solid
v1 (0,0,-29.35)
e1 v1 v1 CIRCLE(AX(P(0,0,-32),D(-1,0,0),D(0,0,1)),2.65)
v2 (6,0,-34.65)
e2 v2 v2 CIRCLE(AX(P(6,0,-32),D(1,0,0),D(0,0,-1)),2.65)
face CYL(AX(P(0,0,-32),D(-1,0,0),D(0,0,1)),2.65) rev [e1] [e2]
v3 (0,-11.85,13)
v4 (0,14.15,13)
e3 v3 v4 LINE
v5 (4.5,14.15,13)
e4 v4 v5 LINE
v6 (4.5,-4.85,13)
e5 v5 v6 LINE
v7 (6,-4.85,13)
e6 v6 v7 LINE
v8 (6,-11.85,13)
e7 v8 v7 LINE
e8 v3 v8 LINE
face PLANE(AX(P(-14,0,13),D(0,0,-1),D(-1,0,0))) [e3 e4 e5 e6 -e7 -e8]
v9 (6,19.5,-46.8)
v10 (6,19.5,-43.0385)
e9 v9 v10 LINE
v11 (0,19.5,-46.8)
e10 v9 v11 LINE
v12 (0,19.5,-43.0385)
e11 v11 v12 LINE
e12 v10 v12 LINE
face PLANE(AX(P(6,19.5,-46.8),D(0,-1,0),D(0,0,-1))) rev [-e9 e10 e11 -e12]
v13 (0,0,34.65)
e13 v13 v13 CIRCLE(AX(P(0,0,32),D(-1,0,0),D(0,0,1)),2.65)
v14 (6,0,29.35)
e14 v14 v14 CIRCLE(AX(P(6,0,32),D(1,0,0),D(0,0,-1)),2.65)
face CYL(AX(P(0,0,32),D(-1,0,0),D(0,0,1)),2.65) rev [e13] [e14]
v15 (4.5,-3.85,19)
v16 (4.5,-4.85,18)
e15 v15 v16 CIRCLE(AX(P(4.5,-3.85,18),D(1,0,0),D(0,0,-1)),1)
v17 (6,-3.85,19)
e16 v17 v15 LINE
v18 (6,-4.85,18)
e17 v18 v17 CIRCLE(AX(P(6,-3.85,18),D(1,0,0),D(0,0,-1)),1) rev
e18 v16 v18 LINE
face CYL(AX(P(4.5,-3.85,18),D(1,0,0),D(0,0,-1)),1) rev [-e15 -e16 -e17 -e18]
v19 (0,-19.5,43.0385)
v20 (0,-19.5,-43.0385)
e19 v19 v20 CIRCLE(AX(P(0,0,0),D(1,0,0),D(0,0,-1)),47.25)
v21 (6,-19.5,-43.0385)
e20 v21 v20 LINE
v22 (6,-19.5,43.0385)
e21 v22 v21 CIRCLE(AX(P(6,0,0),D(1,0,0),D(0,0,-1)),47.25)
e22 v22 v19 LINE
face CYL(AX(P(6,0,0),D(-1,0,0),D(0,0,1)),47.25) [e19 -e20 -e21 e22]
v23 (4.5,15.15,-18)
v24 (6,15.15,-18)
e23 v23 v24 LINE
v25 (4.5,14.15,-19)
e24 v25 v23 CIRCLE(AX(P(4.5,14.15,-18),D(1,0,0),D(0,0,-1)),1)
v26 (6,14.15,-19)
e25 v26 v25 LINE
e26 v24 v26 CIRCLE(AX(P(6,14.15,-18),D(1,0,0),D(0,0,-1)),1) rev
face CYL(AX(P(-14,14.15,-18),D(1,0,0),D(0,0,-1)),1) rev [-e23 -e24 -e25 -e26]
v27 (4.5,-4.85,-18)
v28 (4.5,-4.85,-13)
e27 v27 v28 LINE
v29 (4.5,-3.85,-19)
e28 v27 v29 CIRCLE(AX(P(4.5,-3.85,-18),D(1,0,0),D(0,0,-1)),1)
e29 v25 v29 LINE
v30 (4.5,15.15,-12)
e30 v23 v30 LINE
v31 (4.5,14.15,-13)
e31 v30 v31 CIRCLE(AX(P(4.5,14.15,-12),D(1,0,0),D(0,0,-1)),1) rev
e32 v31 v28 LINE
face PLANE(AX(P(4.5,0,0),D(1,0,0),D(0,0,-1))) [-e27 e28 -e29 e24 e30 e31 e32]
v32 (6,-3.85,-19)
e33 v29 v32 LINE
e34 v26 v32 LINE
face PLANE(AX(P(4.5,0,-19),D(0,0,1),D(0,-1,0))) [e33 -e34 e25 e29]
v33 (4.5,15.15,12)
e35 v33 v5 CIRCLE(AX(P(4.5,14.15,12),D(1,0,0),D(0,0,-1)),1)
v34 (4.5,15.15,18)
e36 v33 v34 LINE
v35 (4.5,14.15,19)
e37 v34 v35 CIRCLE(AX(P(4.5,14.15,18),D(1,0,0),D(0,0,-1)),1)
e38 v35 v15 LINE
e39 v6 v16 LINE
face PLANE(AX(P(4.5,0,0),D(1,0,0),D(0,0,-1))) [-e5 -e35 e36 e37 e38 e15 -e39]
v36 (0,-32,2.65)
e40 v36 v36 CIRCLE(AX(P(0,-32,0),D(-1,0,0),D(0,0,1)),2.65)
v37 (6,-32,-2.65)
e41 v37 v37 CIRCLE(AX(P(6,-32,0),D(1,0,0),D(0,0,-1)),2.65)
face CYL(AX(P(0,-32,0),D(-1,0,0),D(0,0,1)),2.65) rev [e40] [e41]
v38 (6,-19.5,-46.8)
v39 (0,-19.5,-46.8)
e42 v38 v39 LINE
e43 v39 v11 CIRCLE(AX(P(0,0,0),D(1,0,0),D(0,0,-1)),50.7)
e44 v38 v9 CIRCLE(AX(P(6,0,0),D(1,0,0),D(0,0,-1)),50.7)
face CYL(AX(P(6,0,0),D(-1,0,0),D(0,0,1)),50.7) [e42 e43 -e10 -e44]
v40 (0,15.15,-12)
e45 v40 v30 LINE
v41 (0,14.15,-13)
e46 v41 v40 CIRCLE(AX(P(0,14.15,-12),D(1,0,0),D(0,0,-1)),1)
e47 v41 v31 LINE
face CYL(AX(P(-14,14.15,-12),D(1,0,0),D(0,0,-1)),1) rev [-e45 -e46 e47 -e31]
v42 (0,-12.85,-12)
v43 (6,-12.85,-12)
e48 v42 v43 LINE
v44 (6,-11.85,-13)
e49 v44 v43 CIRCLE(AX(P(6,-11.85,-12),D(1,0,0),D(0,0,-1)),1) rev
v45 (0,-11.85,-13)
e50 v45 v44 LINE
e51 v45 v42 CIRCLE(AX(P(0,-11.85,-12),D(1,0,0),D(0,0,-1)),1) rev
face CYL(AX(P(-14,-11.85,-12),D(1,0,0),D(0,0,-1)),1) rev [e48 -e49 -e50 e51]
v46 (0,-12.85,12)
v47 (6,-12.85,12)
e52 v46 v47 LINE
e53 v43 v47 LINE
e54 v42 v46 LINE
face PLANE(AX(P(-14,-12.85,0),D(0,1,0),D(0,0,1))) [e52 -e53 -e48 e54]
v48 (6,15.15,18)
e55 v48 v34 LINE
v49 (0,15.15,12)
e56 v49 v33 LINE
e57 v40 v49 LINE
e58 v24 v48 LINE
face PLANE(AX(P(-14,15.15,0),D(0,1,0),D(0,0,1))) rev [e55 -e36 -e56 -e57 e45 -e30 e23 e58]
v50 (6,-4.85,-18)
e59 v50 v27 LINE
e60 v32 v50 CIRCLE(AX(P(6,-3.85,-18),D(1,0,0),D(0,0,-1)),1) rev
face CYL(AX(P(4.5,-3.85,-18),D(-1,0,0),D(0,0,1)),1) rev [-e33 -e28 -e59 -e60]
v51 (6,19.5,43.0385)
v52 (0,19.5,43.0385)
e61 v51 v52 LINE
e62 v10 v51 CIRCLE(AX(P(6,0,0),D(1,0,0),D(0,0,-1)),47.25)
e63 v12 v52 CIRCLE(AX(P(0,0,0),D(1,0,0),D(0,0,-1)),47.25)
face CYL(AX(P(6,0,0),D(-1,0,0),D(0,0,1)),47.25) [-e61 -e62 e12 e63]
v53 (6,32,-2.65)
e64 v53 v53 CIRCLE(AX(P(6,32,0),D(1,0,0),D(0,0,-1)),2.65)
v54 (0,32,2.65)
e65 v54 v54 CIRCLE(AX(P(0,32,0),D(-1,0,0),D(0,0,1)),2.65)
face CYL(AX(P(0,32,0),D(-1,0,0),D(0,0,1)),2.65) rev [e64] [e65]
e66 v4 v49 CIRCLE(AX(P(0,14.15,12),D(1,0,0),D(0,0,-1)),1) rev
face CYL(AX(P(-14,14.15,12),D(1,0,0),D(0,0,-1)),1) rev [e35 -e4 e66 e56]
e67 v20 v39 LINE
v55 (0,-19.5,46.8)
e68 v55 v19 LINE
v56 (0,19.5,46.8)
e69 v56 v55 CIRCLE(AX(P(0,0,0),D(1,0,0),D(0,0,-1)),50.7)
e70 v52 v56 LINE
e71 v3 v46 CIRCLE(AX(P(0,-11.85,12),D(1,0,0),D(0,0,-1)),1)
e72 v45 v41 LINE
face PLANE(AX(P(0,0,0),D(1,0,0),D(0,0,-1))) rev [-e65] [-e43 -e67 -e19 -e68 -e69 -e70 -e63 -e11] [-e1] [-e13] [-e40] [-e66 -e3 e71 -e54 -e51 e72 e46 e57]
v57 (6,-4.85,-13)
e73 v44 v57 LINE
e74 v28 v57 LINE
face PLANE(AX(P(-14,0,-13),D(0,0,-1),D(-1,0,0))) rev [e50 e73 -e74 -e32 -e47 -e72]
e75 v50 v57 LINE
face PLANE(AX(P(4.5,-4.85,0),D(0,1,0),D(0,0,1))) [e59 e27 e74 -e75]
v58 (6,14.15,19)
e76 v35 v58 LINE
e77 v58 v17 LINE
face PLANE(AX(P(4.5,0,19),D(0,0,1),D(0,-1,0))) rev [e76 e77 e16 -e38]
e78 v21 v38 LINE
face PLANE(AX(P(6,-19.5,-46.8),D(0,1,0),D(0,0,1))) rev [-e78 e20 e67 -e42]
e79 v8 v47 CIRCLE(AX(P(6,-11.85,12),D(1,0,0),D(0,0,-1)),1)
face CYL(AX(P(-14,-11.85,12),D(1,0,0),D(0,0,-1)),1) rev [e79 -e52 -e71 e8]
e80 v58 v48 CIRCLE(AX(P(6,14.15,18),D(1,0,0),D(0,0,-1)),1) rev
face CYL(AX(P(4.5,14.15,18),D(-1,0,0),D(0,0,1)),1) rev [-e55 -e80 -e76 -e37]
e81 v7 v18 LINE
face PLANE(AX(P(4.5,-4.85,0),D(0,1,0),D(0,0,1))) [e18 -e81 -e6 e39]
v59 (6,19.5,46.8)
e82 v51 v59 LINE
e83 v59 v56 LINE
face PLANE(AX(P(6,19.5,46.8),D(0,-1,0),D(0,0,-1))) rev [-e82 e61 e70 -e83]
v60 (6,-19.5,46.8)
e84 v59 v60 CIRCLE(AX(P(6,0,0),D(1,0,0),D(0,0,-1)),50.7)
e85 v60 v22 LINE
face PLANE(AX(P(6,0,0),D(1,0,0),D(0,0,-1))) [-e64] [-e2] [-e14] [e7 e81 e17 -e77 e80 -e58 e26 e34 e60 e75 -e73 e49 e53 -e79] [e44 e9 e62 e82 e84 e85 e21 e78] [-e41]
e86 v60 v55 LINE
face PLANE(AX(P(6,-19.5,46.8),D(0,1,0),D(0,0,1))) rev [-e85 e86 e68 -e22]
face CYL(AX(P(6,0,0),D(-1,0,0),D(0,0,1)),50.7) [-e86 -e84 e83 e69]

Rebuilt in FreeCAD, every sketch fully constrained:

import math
import FreeCAD as App
import Part
import Sketcher
Q = App.Units.Quantity


def edges_at(feature, points):
    """Names of the edges that pass closest to the given points."""
    edges = feature.Shape.Edges
    near = lambda p: min(range(len(edges)), key=lambda i: edges[i].distToShape(Part.Vertex(*p))[0])
    return sorted({f"Edge{near(p) + 1}" for p in points})


def add_polygon(sketch, points):
    """Adds a closed chain of lines whose ends are joined by coincident constraints."""
    first, n = sketch.GeometryCount, len(points)
    for a, b in zip(points, points[1:] + points[:1]):
        sketch.addGeometry(Part.LineSegment(App.Vector(*a, 0), App.Vector(*b, 0)), False)
    for i in range(n):
        sketch.addConstraint(Sketcher.Constraint("Coincident", first + i, 2, first + (i + 1) % n, 1))

doc = App.newDocument("Part")
body = doc.addObject("PartDesign::Body", "Body")

# Sketch on YZ plane
sketch1 = body.newObject("Sketcher::SketchObject", "Sketch")
sketch1.AttachmentSupport = (doc.getObject("YZ_Plane"), [""])
sketch1.MapMode = "FlatFace"
sketch1.addGeometry(Part.LineSegment(App.Vector(19.5, 43, 0), App.Vector(19.5, 46.8, 0)), False)
sketch1.addGeometry(Part.ArcOfCircle(Part.Circle(App.Vector(0, 0, 0), App.Vector(0, 0, 1), 50.7), math.radians(67), math.radians(113)), False)
sketch1.addGeometry(Part.LineSegment(App.Vector(-19.5, 46.8, 0), App.Vector(-19.5, 43, 0)), False)
sketch1.addGeometry(Part.ArcOfCircle(Part.Circle(App.Vector(0, 0, 0), App.Vector(0, 0, 1), 47.2), math.radians(114), math.radians(246)), False)
sketch1.addGeometry(Part.LineSegment(App.Vector(-19.5, -43, 0), App.Vector(-19.5, -46.8, 0)), False)
sketch1.addGeometry(Part.ArcOfCircle(Part.Circle(App.Vector(0, 0, 0), App.Vector(0, 0, 1), 50.7), math.radians(-113), math.radians(-67)), False)
sketch1.addGeometry(Part.LineSegment(App.Vector(19.5, -46.8, 0), App.Vector(19.5, -43, 0)), False)
sketch1.addGeometry(Part.ArcOfCircle(Part.Circle(App.Vector(0, 0, 0), App.Vector(0, 0, 1), 47.2), math.radians(-66), math.radians(66)), False)
sketch1.addConstraint(Sketcher.Constraint("Coincident", 0, 2, 1, 1))
sketch1.addConstraint(Sketcher.Constraint("Coincident", 1, 2, 2, 1))
sketch1.addConstraint(Sketcher.Constraint("Coincident", 2, 2, 3, 1))
sketch1.addConstraint(Sketcher.Constraint("Coincident", 3, 2, 4, 1))
sketch1.addConstraint(Sketcher.Constraint("Coincident", 4, 2, 5, 1))
sketch1.addConstraint(Sketcher.Constraint("Coincident", 5, 2, 6, 1))
sketch1.addConstraint(Sketcher.Constraint("Coincident", 6, 2, 7, 1))
sketch1.addConstraint(Sketcher.Constraint("Coincident", 7, 2, 0, 1))
sketch1.addConstraint(Sketcher.Constraint("Vertical", 0))
sketch1.addConstraint(Sketcher.Constraint("Vertical", 2))
sketch1.addConstraint(Sketcher.Constraint("Vertical", 4))
sketch1.addConstraint(Sketcher.Constraint("Vertical", 6))
sketch1.addConstraint(Sketcher.Constraint("Coincident", 1, 3, -1, 1))
sketch1.addConstraint(Sketcher.Constraint("Coincident", 3, 3, -1, 1))
sketch1.addConstraint(Sketcher.Constraint("Coincident", 5, 3, -1, 1))
sketch1.addConstraint(Sketcher.Constraint("Coincident", 7, 3, -1, 1))
sketch1.addConstraint(Sketcher.Constraint("Equal", 1, 5))
sketch1.addConstraint(Sketcher.Constraint("Equal", 3, 7))
sketch1.addConstraint(Sketcher.Constraint("Horizontal", 0, 2, 1, 2))
sketch1.addConstraint(Sketcher.Constraint("Horizontal", 4, 2, 5, 2))
sketch1.addConstraint(Sketcher.Constraint("Vertical", 2, 2, 3, 2))
sketch1.addConstraint(Sketcher.Constraint("Radius", 1, Q("50.7 mm")))
sketch1.addConstraint(Sketcher.Constraint("Radius", 3, Q("47.25 mm")))
sketch1.addConstraint(Sketcher.Constraint("DistanceX", 1, 2, 0, 2, Q("39 mm")))
pad1 = body.newObject("PartDesign::Pad", "Pad")
pad1.Profile = sketch1
pad1.Length = 6

# Sketch on YZ plane
sketch2 = body.newObject("Sketcher::SketchObject", "Sketch001")
sketch2.AttachmentSupport = (doc.getObject("YZ_Plane"), [""])
sketch2.MapMode = "FlatFace"
sketch2.AttachmentOffset = App.Placement(App.Vector(0, 0, 6), App.Rotation())
sketch2.addGeometry(Part.ArcOfCircle(Part.Circle(App.Vector(14.1, -12, 0), App.Vector(0, 0, 1), 1), math.radians(-90), math.radians(0)), False)
sketch2.addGeometry(Part.LineSegment(App.Vector(15.2, -12, 0), App.Vector(15.2, 12, 0)), False)
sketch2.addGeometry(Part.ArcOfCircle(Part.Circle(App.Vector(14.1, 12, 0), App.Vector(0, 0, 1), 1), math.radians(0), math.radians(90)), False)
sketch2.addGeometry(Part.LineSegment(App.Vector(14.2, 13, 0), App.Vector(-11.8, 13, 0)), False)
sketch2.addGeometry(Part.ArcOfCircle(Part.Circle(App.Vector(-11.8, 12, 0), App.Vector(0, 0, 1), 1), math.radians(90), math.radians(180)), False)
sketch2.addGeometry(Part.LineSegment(App.Vector(-12.8, 12, 0), App.Vector(-12.8, -12, 0)), False)
sketch2.addGeometry(Part.ArcOfCircle(Part.Circle(App.Vector(-11.8, -12, 0), App.Vector(0, 0, 1), 1), math.radians(-180), math.radians(-90)), False)
sketch2.addGeometry(Part.LineSegment(App.Vector(-11.8, -13, 0), App.Vector(14.2, -13, 0)), False)
sketch2.addConstraint(Sketcher.Constraint("Tangent", 0, 2, 1, 1))
sketch2.addConstraint(Sketcher.Constraint("Tangent", 1, 2, 2, 1))
sketch2.addConstraint(Sketcher.Constraint("Tangent", 2, 2, 3, 1))
sketch2.addConstraint(Sketcher.Constraint("Tangent", 3, 2, 4, 1))
sketch2.addConstraint(Sketcher.Constraint("Tangent", 4, 2, 5, 1))
sketch2.addConstraint(Sketcher.Constraint("Tangent", 5, 2, 6, 1))
sketch2.addConstraint(Sketcher.Constraint("Tangent", 6, 2, 7, 1))
sketch2.addConstraint(Sketcher.Constraint("Tangent", 7, 2, 0, 1))
sketch2.addConstraint(Sketcher.Constraint("Vertical", 1))
sketch2.addConstraint(Sketcher.Constraint("Horizontal", 3))
sketch2.addConstraint(Sketcher.Constraint("Vertical", 5))
sketch2.addConstraint(Sketcher.Constraint("Horizontal", 7))
sketch2.addConstraint(Sketcher.Constraint("Equal", 0, 2))
sketch2.addConstraint(Sketcher.Constraint("Equal", 2, 4))
sketch2.addConstraint(Sketcher.Constraint("Equal", 4, 6))
sketch2.addConstraint(Sketcher.Constraint("Radius", 0, Q("1 mm")))
sketch2.addConstraint(Sketcher.Constraint("DistanceX", 3, 2, 3, 1, Q("26 mm")))
sketch2.addConstraint(Sketcher.Constraint("DistanceY", 1, 1, 1, 2, Q("24 mm")))
sketch2.addConstraint(Sketcher.Constraint("DistanceY", 0, 3, -1, 1, Q("12 mm")))
sketch2.addConstraint(Sketcher.Constraint("DistanceX", -1, 1, 0, 3, Q("14.15 mm")))
pocket1 = body.newObject("PartDesign::Pocket", "Pocket")
pocket1.Profile = sketch2
pocket1.Length = 20

# Sketch on YZ plane
sketch3 = body.newObject("Sketcher::SketchObject", "Sketch002")
sketch3.AttachmentSupport = (doc.getObject("YZ_Plane"), [""])
sketch3.MapMode = "FlatFace"
sketch3.addGeometry(Part.Circle(App.Vector(0, -32, 0), App.Vector(0, 0, 1), 2.6), False)
sketch3.addGeometry(Part.Circle(App.Vector(32, 0, 0), App.Vector(0, 0, 1), 2.6), False)
sketch3.addGeometry(Part.Circle(App.Vector(0, 32, 0), App.Vector(0, 0, 1), 2.6), False)
sketch3.addGeometry(Part.Circle(App.Vector(-32, 0, 0), App.Vector(0, 0, 1), 2.6), False)
sketch3.addConstraint(Sketcher.Constraint("Equal", 0, 1))
sketch3.addConstraint(Sketcher.Constraint("Equal", 1, 2))
sketch3.addConstraint(Sketcher.Constraint("Equal", 2, 3))
sketch3.addConstraint(Sketcher.Constraint("Symmetric", 0, 3, 2, 3, -1, 1))
sketch3.addConstraint(Sketcher.Constraint("Symmetric", 1, 3, 3, 3, -1, 1))
sketch3.addConstraint(Sketcher.Constraint("PointOnObject", 0, 3, -2))
sketch3.addConstraint(Sketcher.Constraint("PointOnObject", 1, 3, -1))
sketch3.addConstraint(Sketcher.Constraint("Diameter", 0, Q("5.3 mm")))
sketch3.addConstraint(Sketcher.Constraint("DistanceY", 0, 3, -1, 1, Q("32 mm")))
sketch3.addConstraint(Sketcher.Constraint("DistanceX", -1, 1, 1, 3, Q("32 mm")))
doc.recompute()
hole = body.newObject("PartDesign::Hole", "Hole")
hole.Profile = sketch3
hole.ThreadType = "None"
hole.Diameter = 5.3
hole.DepthType = "Dimension"
hole.Depth = 15
hole.DrillPoint = "Angled"
hole.DrillPointAngle = 118
hole.Reversed = True

# Sketch on YZ plane
sketch4 = body.newObject("Sketcher::SketchObject", "Sketch003")
sketch4.AttachmentSupport = (doc.getObject("YZ_Plane"), [""])
sketch4.MapMode = "FlatFace"
sketch4.AttachmentOffset = App.Placement(App.Vector(0, 0, 6), App.Rotation())
add_polygon(sketch4, [(15, 19), (-5, 19), (-5, -19), (15, -19)])  # lines 0-3
sketch4.addConstraint(Sketcher.Constraint("Horizontal", 0))
sketch4.addConstraint(Sketcher.Constraint("Vertical", 1))
sketch4.addConstraint(Sketcher.Constraint("Horizontal", 2))
sketch4.addConstraint(Sketcher.Constraint("Vertical", 3))
sketch4.addConstraint(Sketcher.Constraint("DistanceX", 0, 2, 0, 1, Q("20 mm")))
sketch4.addConstraint(Sketcher.Constraint("DistanceY", 1, 2, 1, 1, Q("38 mm")))
sketch4.addConstraint(Sketcher.Constraint("DistanceY", -1, 1, 0, 2, Q("19 mm")))
sketch4.addConstraint(Sketcher.Constraint("DistanceX", 0, 2, -1, 1, Q("4.85 mm")))
pocket2 = body.newObject("PartDesign::Pocket", "Pocket001")
pocket2.Profile = sketch4
pocket2.Length = 1.5
doc.recompute()

fillet = body.newObject("PartDesign::Fillet", "Fillet")
fillet.Base = (pocket2, edges_at(pocket2, [
    (5.25, 15.15, 19),
    (5.25, -4.85, -19),
    (5.25, -4.85, 19),
    (5.25, 15.15, -19),
]))
fillet.Radius = 1

doc.recompute()
